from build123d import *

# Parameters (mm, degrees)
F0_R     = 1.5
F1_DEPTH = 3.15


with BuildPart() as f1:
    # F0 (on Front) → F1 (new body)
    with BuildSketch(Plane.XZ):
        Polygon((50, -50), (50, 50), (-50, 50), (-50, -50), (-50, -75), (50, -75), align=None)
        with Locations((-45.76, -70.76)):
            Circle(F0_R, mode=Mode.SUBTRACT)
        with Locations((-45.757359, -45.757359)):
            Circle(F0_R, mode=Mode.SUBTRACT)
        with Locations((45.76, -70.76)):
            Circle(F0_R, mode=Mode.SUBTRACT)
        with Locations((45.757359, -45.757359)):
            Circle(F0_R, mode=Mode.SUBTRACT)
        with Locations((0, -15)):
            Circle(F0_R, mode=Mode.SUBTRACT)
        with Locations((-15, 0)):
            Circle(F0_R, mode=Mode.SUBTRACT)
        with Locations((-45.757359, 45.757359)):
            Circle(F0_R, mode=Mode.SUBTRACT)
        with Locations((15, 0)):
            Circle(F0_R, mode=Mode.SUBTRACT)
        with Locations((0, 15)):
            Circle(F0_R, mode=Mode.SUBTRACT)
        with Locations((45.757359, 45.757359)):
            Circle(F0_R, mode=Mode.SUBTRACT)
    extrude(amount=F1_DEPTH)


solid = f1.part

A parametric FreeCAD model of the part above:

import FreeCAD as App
import Part
import Sketcher
from FreeCAD import Vector
Q = App.Units.Quantity

doc = App.newDocument("Part")
params = doc.addObject("Spreadsheet::Sheet", "Params")
for row, (alias, value) in enumerate([
    ("sketch1_diameter", "3 mm"),
    ("sketch1_width", "100 mm"),
    ("sketch1_height", "125 mm"),
    ("pad1_length", "3.15 mm"),
], start=1):
    params.set(f"A{row}", alias)
    params.set(f"B{row}", "=" + value)
    params.setAlias(f"B{row}", alias)

body = doc.addObject("PartDesign::Body", "Body")

sketch1 = doc.addObject("Sketcher::SketchObject", "Sketch")
body.addObject(sketch1)
sketch1.AttachmentSupport = (doc.XZ_Plane, [""])
sketch1.MapMode = "FlatFace"
sketch1.addGeometry([
    Part.LineSegment(Vector(50, 50, 0), Vector(-50, 50, 0)),
    Part.LineSegment(Vector(-50, 50, 0), Vector(-50, -75, 0)),
    Part.LineSegment(Vector(-50, -75, 0), Vector(50, -75, 0)),
    Part.LineSegment(Vector(50, -75, 0), Vector(50, 50, 0)),
    Part.Circle(Vector(-45.8, -70.8, 0), Vector(0, 0, 1), 1.5),
    Part.Circle(Vector(-45.8, -45.8, 0), Vector(0, 0, 1), 1.5),
    Part.Circle(Vector(45.8, -70.8, 0), Vector(0, 0, 1), 1.5),
    Part.Circle(Vector(45.8, -45.8, 0), Vector(0, 0, 1), 1.5),
    Part.Circle(Vector(0, -15, 0), Vector(0, 0, 1), 1.5),
    Part.Circle(Vector(-15, 0, 0), Vector(0, 0, 1), 1.5),
    Part.Circle(Vector(-45.8, 45.8, 0), Vector(0, 0, 1), 1.5),
    Part.Circle(Vector(15, 0, 0), Vector(0, 0, 1), 1.5),
    Part.Circle(Vector(0, 15, 0), Vector(0, 0, 1), 1.5),
    Part.Circle(Vector(45.8, 45.8, 0), Vector(0, 0, 1), 1.5),
], False)
sketch1.addConstraint([
    Sketcher.Constraint("Coincident", 0, 2, 1, 1),
    Sketcher.Constraint("Coincident", 1, 2, 2, 1),
    Sketcher.Constraint("Coincident", 2, 2, 3, 1),
    Sketcher.Constraint("Coincident", 3, 2, 0, 1),
    Sketcher.Constraint("Horizontal", 0),
    Sketcher.Constraint("Vertical", 1),
    Sketcher.Constraint("Horizontal", 2),
    Sketcher.Constraint("Vertical", 3),
    Sketcher.Constraint("Equal", 4, 5),
    Sketcher.Constraint("Equal", 5, 6),
    Sketcher.Constraint("Equal", 6, 7),
    Sketcher.Constraint("Equal", 7, 8),
    Sketcher.Constraint("Equal", 8, 9),
    Sketcher.Constraint("Equal", 9, 10),
    Sketcher.Constraint("Equal", 10, 11),
    Sketcher.Constraint("Equal", 11, 12),
    Sketcher.Constraint("Equal", 12, 13),
    Sketcher.Constraint("Symmetric", 7, 3, 10, 3, -1, 1),
    Sketcher.Constraint("Symmetric", 9, 3, 11, 3, -1, 1),
    Sketcher.Constraint("Symmetric", 8, 3, 12, 3, -1, 1),
    Sketcher.Constraint("Symmetric", 5, 3, 13, 3, -1, 1),
    Sketcher.Constraint("Symmetric", 4, 3, 6, 3, -2),
    Sketcher.Constraint("Symmetric", 5, 3, 7, 3, -2),
    Sketcher.Constraint("PointOnObject", 8, 3, -2),
    Sketcher.Constraint("PointOnObject", 9, 3, -1),
    Sketcher.Constraint("Diameter", 4, Q("3 mm")),
    Sketcher.Constraint("DistanceX", 0, 2, 0, 1, Q("100 mm")),
    Sketcher.Constraint("DistanceY", 1, 2, 1, 1, Q("125 mm")),
    Sketcher.Constraint("DistanceY", 8, 3, -1, 1, Q("15 mm")),
    Sketcher.Constraint("DistanceX", 9, 3, -1, 1, Q("15 mm")),
    Sketcher.Constraint("DistanceX", 0, 2, -1, 1, Q("50 mm")),
    Sketcher.Constraint("DistanceY", -1, 1, 0, 2, Q("50 mm")),
    Sketcher.Constraint("DistanceX", 4, 3, -1, 1, Q("45.76 mm")),
    Sketcher.Constraint("DistanceY", 4, 3, -1, 1, Q("70.76 mm")),
    Sketcher.Constraint("DistanceX", 5, 3, -1, 1, Q("45.757359 mm")),
    Sketcher.Constraint("DistanceY", 5, 3, -1, 1, Q("45.757359 mm")),
])
sketch1.setExpression("Constraints[25]", "Params.sketch1_diameter")
sketch1.setExpression("Constraints[26]", "Params.sketch1_width")
sketch1.setExpression("Constraints[27]", "Params.sketch1_height")
pad1 = doc.addObject("PartDesign::Pad", "Pad")
body.addObject(pad1)
pad1.Profile = sketch1
pad1.setExpression("Length", "Params.pad1_length")

doc.recompute()
